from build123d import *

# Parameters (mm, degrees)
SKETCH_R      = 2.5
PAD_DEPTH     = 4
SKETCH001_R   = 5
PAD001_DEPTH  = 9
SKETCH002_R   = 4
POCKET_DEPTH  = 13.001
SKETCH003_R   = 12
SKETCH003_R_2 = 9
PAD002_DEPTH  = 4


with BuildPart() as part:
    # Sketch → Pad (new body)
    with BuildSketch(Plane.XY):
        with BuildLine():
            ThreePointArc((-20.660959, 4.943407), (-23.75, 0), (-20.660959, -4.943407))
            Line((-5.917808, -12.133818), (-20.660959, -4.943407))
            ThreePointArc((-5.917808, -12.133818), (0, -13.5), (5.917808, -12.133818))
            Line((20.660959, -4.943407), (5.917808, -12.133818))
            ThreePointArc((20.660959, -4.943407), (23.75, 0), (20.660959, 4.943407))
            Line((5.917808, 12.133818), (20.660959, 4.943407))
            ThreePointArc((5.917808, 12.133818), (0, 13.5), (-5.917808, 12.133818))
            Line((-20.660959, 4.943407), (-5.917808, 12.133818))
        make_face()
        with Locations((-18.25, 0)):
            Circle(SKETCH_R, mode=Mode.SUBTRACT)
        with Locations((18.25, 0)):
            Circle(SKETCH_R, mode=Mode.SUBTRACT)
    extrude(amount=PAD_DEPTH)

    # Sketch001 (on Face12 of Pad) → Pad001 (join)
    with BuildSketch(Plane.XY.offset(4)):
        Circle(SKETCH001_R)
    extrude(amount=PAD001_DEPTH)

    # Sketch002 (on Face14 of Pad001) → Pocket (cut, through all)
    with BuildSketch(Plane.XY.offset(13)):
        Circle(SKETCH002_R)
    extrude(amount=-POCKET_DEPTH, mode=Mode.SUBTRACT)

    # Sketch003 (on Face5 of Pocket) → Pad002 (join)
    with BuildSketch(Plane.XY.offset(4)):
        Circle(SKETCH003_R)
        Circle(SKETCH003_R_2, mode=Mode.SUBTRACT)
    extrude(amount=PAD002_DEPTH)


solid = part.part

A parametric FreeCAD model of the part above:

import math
import FreeCAD as App
import Part
import Sketcher

doc = App.newDocument("Part")
body = doc.addObject("PartDesign::Body", "Body")

sketch1 = body.newObject("Sketcher::SketchObject", "Sketch")
sketch1.AttachmentSupport = (doc.getObject("XY_Plane"), [""])
sketch1.MapMode = "FlatFace"
sketch1.addGeometry([
    Part.ArcOfCircle(Part.Circle(App.Vector(-18.250001, 0, 0), App.Vector(0, 0, 1), 5.499999), math.radians(115.999042), math.radians(244.000958)),
    Part.LineSegment(App.Vector(-20.660959, -4.943407, 0), App.Vector(-5.917808, -12.133818, 0)),
    Part.ArcOfCircle(Part.Circle(App.Vector(0, -0.000003, 0), App.Vector(0, 0, 1), 13.499997), math.radians(-115.999051), math.radians(-64.000949)),
    Part.LineSegment(App.Vector(5.917808, -12.133818, 0), App.Vector(20.660959, -4.943407, 0)),
    Part.ArcOfCircle(Part.Circle(App.Vector(18.250001, 0, 0), App.Vector(0, 0, 1), 5.499999), math.radians(-64.000958), math.radians(64.000958)),
    Part.LineSegment(App.Vector(20.660959, 4.943407, 0), App.Vector(5.917808, 12.133818, 0)),
    Part.ArcOfCircle(Part.Circle(App.Vector(0, 0.000003, 0), App.Vector(0, 0, 1), 13.499997), math.radians(64.000949), math.radians(115.999051)),
    Part.LineSegment(App.Vector(-5.917808, 12.133818, 0), App.Vector(-20.660959, 4.943407, 0)),
    Part.Circle(App.Vector(-18.25, 0, 0), App.Vector(0, 0, 1), 2.5),
    Part.Circle(App.Vector(18.25, 0, 0), App.Vector(0, 0, 1), 2.5),
], False)
sketch1.addConstraint([
    Sketcher.Constraint("Tangent", 0, 2, 1, 1),
    Sketcher.Constraint("Tangent", 1, 2, 2, 1),
    Sketcher.Constraint("Tangent", 2, 2, 3, 1),
    Sketcher.Constraint("Tangent", 3, 2, 4, 1),
    Sketcher.Constraint("Tangent", 4, 2, 5, 1),
    Sketcher.Constraint("Tangent", 5, 2, 6, 1),
    Sketcher.Constraint("Tangent", 6, 2, 7, 1),
    Sketcher.Constraint("Tangent", 7, 2, 0, 1),
    Sketcher.Constraint("Coincident", 2, 3, -1, 1),
    Sketcher.Constraint("Coincident", 6, 3, -1, 1),
    Sketcher.Constraint("Coincident", 8, 3, 0, 3),
    Sketcher.Constraint("Coincident", 9, 3, 4, 3),
    Sketcher.Constraint("Equal", 0, 4),
    Sketcher.Constraint("Equal", 2, 6),
    Sketcher.Constraint("Equal", 8, 9),
    Sketcher.Constraint("Symmetric", 0, 3, 4, 3, -1, 1),
    Sketcher.Constraint("PointOnObject", 0, 3, -1),
    Sketcher.Constraint("Diameter", 8, 5.0),
    Sketcher.Constraint("Radius", 0, 5.499999),
    Sketcher.Constraint("DistanceX", 0, 3, 4, 3, 36.500001),
    Sketcher.Constraint("Radius", 2, 13.499997),
])
pad1 = body.newObject("PartDesign::Pad", "Pad")
pad1.Profile = sketch1
pad1.Length = 4

sketch2 = body.newObject("Sketcher::SketchObject", "Sketch001")
sketch2.AttachmentSupport = (doc.getObject("XY_Plane"), [""])
sketch2.MapMode = "FlatFace"
sketch2.AttachmentOffset = App.Placement(App.Vector(0, 0, 4), App.Rotation())
sketch2.addGeometry(Part.Circle(App.Vector(0, 0, 0), App.Vector(0, 0, 1), 5), False)
sketch2.addConstraint([
    Sketcher.Constraint("Coincident", 0, 3, -1, 1),
    Sketcher.Constraint("Diameter", 0, 10.0),
])
pad2 = body.newObject("PartDesign::Pad", "Pad001")
pad2.Profile = sketch2
pad2.Length = 9

sketch3 = body.newObject("Sketcher::SketchObject", "Sketch002")
sketch3.AttachmentSupport = (doc.getObject("XY_Plane"), [""])
sketch3.MapMode = "FlatFace"
sketch3.AttachmentOffset = App.Placement(App.Vector(0, 0, 13), App.Rotation())
sketch3.addGeometry(Part.Circle(App.Vector(0, 0, 0), App.Vector(0, 0, 1), 4), False)
sketch3.addConstraint([
    Sketcher.Constraint("Coincident", 0, 3, -1, 1),
    Sketcher.Constraint("Diameter", 0, 8.0),
])
pocket1 = body.newObject("PartDesign::Pocket", "Pocket")
pocket1.Profile = sketch3
pocket1.Type = "ThroughAll"

sketch4 = body.newObject("Sketcher::SketchObject", "Sketch003")
sketch4.AttachmentSupport = (doc.getObject("XY_Plane"), [""])
sketch4.MapMode = "FlatFace"
sketch4.AttachmentOffset = App.Placement(App.Vector(0, 0, 4), App.Rotation())
sketch4.addGeometry([
    Part.Circle(App.Vector(0, 0, 0), App.Vector(0, 0, 1), 12),
    Part.Circle(App.Vector(0, 0, 0), App.Vector(0, 0, 1), 9),
], False)
sketch4.addConstraint([
    Sketcher.Constraint("Coincident", 0, 3, -1, 1),
    Sketcher.Constraint("Coincident", 1, 3, -1, 1),
    Sketcher.Constraint("Diameter", 0, 24.0),
    Sketcher.Constraint("Diameter", 1, 18.0),
])
pad3 = body.newObject("PartDesign::Pad", "Pad002")
pad3.Profile = sketch4
pad3.Length = 4

doc.recompute()
